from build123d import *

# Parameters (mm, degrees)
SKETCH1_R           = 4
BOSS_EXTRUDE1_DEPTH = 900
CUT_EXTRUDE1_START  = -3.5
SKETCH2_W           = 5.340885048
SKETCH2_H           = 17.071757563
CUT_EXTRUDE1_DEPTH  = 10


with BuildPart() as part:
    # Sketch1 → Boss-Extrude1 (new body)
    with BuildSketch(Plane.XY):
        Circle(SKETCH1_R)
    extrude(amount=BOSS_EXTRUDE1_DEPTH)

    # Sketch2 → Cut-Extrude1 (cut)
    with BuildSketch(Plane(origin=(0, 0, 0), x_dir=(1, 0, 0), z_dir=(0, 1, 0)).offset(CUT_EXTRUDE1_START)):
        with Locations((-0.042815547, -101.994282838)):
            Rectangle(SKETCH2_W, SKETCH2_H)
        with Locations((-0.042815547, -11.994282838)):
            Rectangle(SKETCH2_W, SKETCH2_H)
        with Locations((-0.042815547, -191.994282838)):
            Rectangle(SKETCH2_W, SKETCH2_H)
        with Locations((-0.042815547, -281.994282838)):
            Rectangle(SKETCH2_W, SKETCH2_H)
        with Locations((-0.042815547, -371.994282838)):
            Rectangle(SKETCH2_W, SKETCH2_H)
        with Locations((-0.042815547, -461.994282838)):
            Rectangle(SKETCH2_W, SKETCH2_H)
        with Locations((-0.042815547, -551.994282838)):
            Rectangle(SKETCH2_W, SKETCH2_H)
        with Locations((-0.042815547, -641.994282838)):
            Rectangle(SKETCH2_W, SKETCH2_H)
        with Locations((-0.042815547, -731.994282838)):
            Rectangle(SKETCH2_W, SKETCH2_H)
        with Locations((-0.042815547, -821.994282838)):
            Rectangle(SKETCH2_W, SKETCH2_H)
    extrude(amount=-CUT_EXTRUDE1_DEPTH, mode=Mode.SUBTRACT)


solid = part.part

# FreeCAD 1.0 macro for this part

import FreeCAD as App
import Part
import Sketcher
from FreeCAD import Vector
Q = App.Units.Quantity

doc = App.newDocument("Part")
body = doc.addObject("PartDesign::Body", "Body")

sketch1 = body.newObject("Sketcher::SketchObject", "Sketch")
sketch1.AttachmentSupport = (doc.getObject("XY_Plane"), [""])
sketch1.MapMode = "FlatFace"
sketch1.addGeometry(Part.Circle(Vector(0, 0, 0), Vector(0, 0, 1), 4), False)
sketch1.addConstraint([
    Sketcher.Constraint("Coincident", 0, 3, -1, 1),
    Sketcher.Constraint("Diameter", 0, Q("8 mm")),
])
pad1 = body.newObject("PartDesign::Pad", "Pad")
pad1.Profile = sketch1
pad1.Length = 900

sketch2 = body.newObject("Sketcher::SketchObject", "Sketch001")
sketch2.AttachmentSupport = (doc.getObject("XZ_Plane"), [""])
sketch2.MapMode = "FlatFace"
sketch2.AttachmentOffset = App.Placement(Vector(0, 0, 3.5), App.Rotation())
sketch2.addGeometry([
    Part.LineSegment(Vector(-3, 93, 0), Vector(-3, 111, 0)),
    Part.LineSegment(Vector(-3, 111, 0), Vector(3, 111, 0)),
    Part.LineSegment(Vector(3, 111, 0), Vector(3, 93, 0)),
    Part.LineSegment(Vector(3, 93, 0), Vector(-3, 93, 0)),
    Part.LineSegment(Vector(-3, 3, 0), Vector(-3, 21, 0)),
    Part.LineSegment(Vector(-3, 21, 0), Vector(3, 21, 0)),
    Part.LineSegment(Vector(3, 21, 0), Vector(3, 3, 0)),
    Part.LineSegment(Vector(3, 3, 0), Vector(-3, 3, 0)),
    Part.LineSegment(Vector(-3, 183, 0), Vector(-3, 201, 0)),
    Part.LineSegment(Vector(-3, 201, 0), Vector(3, 201, 0)),
    Part.LineSegment(Vector(3, 201, 0), Vector(3, 183, 0)),
    Part.LineSegment(Vector(3, 183, 0), Vector(-3, 183, 0)),
    Part.LineSegment(Vector(-3, 273, 0), Vector(-3, 291, 0)),
    Part.LineSegment(Vector(-3, 291, 0), Vector(3, 291, 0)),
    Part.LineSegment(Vector(3, 291, 0), Vector(3, 273, 0)),
    Part.LineSegment(Vector(3, 273, 0), Vector(-3, 273, 0)),
    Part.LineSegment(Vector(-3, 363, 0), Vector(-3, 381, 0)),
    Part.LineSegment(Vector(-3, 381, 0), Vector(3, 381, 0)),
    Part.LineSegment(Vector(3, 381, 0), Vector(3, 363, 0)),
    Part.LineSegment(Vector(3, 363, 0), Vector(-3, 363, 0)),
    Part.LineSegment(Vector(-3, 453, 0), Vector(-3, 471, 0)),
    Part.LineSegment(Vector(-3, 471, 0), Vector(3, 471, 0)),
    Part.LineSegment(Vector(3, 471, 0), Vector(3, 453, 0)),
    Part.LineSegment(Vector(3, 453, 0), Vector(-3, 453, 0)),
    Part.LineSegment(Vector(-3, 543, 0), Vector(-3, 561, 0)),
    Part.LineSegment(Vector(-3, 561, 0), Vector(3, 561, 0)),
    Part.LineSegment(Vector(3, 561, 0), Vector(3, 543, 0)),
    Part.LineSegment(Vector(3, 543, 0), Vector(-3, 543, 0)),
    Part.LineSegment(Vector(-3, 633, 0), Vector(-3, 651, 0)),
    Part.LineSegment(Vector(-3, 651, 0), Vector(3, 651, 0)),
    Part.LineSegment(Vector(3, 651, 0), Vector(3, 633, 0)),
    Part.LineSegment(Vector(3, 633, 0), Vector(-3, 633, 0)),
    Part.LineSegment(Vector(-3, 723, 0), Vector(-3, 741, 0)),
    Part.LineSegment(Vector(-3, 741, 0), Vector(3, 741, 0)),
    Part.LineSegment(Vector(3, 741, 0), Vector(3, 723, 0)),
    Part.LineSegment(Vector(3, 723, 0), Vector(-3, 723, 0)),
    Part.LineSegment(Vector(-3, 813, 0), Vector(-3, 831, 0)),
    Part.LineSegment(Vector(-3, 831, 0), Vector(3, 831, 0)),
    Part.LineSegment(Vector(3, 831, 0), Vector(3, 813, 0)),
    Part.LineSegment(Vector(3, 813, 0), Vector(-3, 813, 0)),
], False)
sketch2.addConstraint([
    Sketcher.Constraint("Coincident", 0, 2, 1, 1),
    Sketcher.Constraint("Coincident", 1, 2, 2, 1),
    Sketcher.Constraint("Coincident", 2, 2, 3, 1),
    Sketcher.Constraint("Coincident", 3, 2, 0, 1),
    Sketcher.Constraint("Coincident", 4, 2, 5, 1),
    Sketcher.Constraint("Coincident", 5, 2, 6, 1),
    Sketcher.Constraint("Coincident", 6, 2, 7, 1),
    Sketcher.Constraint("Coincident", 7, 2, 4, 1),
    Sketcher.Constraint("Coincident", 8, 2, 9, 1),
    Sketcher.Constraint("Coincident", 9, 2, 10, 1),
    Sketcher.Constraint("Coincident", 10, 2, 11, 1),
    Sketcher.Constraint("Coincident", 11, 2, 8, 1),
    Sketcher.Constraint("Coincident", 12, 2, 13, 1),
    Sketcher.Constraint("Coincident", 13, 2, 14, 1),
    Sketcher.Constraint("Coincident", 14, 2, 15, 1),
    Sketcher.Constraint("Coincident", 15, 2, 12, 1),
    Sketcher.Constraint("Coincident", 16, 2, 17, 1),
    Sketcher.Constraint("Coincident", 17, 2, 18, 1),
    Sketcher.Constraint("Coincident", 18, 2, 19, 1),
    Sketcher.Constraint("Coincident", 19, 2, 16, 1),
    Sketcher.Constraint("Coincident", 20, 2, 21, 1),
    Sketcher.Constraint("Coincident", 21, 2, 22, 1),
    Sketcher.Constraint("Coincident", 22, 2, 23, 1),
    Sketcher.Constraint("Coincident", 23, 2, 20, 1),
    Sketcher.Constraint("Coincident", 24, 2, 25, 1),
    Sketcher.Constraint("Coincident", 25, 2, 26, 1),
    Sketcher.Constraint("Coincident", 26, 2, 27, 1),
    Sketcher.Constraint("Coincident", 27, 2, 24, 1),
    Sketcher.Constraint("Coincident", 28, 2, 29, 1),
    Sketcher.Constraint("Coincident", 29, 2, 30, 1),
    Sketcher.Constraint("Coincident", 30, 2, 31, 1),
    Sketcher.Constraint("Coincident", 31, 2, 28, 1),
    Sketcher.Constraint("Coincident", 32, 2, 33, 1),
    Sketcher.Constraint("Coincident", 33, 2, 34, 1),
    Sketcher.Constraint("Coincident", 34, 2, 35, 1),
    Sketcher.Constraint("Coincident", 35, 2, 32, 1),
    Sketcher.Constraint("Coincident", 36, 2, 37, 1),
    Sketcher.Constraint("Coincident", 37, 2, 38, 1),
    Sketcher.Constraint("Coincident", 38, 2, 39, 1),
    Sketcher.Constraint("Coincident", 39, 2, 36, 1),
    Sketcher.Constraint("Vertical", 0),
    Sketcher.Constraint("Horizontal", 1),
    Sketcher.Constraint("Vertical", 2),
    Sketcher.Constraint("Horizontal", 3),
    Sketcher.Constraint("Vertical", 4),
    Sketcher.Constraint("Horizontal", 5),
    Sketcher.Constraint("Vertical", 6),
    Sketcher.Constraint("Horizontal", 7),
    Sketcher.Constraint("Vertical", 8),
    Sketcher.Constraint("Horizontal", 9),
    Sketcher.Constraint("Vertical", 10),
    Sketcher.Constraint("Horizontal", 11),
    Sketcher.Constraint("Vertical", 12),
    Sketcher.Constraint("Horizontal", 13),
    Sketcher.Constraint("Vertical", 14),
    Sketcher.Constraint("Horizontal", 15),
    Sketcher.Constraint("Vertical", 16),
    Sketcher.Constraint("Horizontal", 17),
    Sketcher.Constraint("Vertical", 18),
    Sketcher.Constraint("Horizontal", 19),
    Sketcher.Constraint("Vertical", 20),
    Sketcher.Constraint("Horizontal", 21),
    Sketcher.Constraint("Vertical", 22),
    Sketcher.Constraint("Horizontal", 23),
    Sketcher.Constraint("Vertical", 24),
    Sketcher.Constraint("Horizontal", 25),
    Sketcher.Constraint("Vertical", 26),
    Sketcher.Constraint("Horizontal", 27),
    Sketcher.Constraint("Vertical", 28),
    Sketcher.Constraint("Horizontal", 29),
    Sketcher.Constraint("Vertical", 30),
    Sketcher.Constraint("Horizontal", 31),
    Sketcher.Constraint("Vertical", 32),
    Sketcher.Constraint("Horizontal", 33),
    Sketcher.Constraint("Vertical", 34),
    Sketcher.Constraint("Horizontal", 35),
    Sketcher.Constraint("Vertical", 36),
    Sketcher.Constraint("Horizontal", 37),
    Sketcher.Constraint("Vertical", 38),
    Sketcher.Constraint("Horizontal", 39),
    Sketcher.Constraint("Vertical", 3, 2, 4, 2),
    Sketcher.Constraint("Vertical", 2, 2, 5, 2),
    Sketcher.Constraint("Vertical", 7, 2, 8, 2),
    Sketcher.Constraint("Vertical", 6, 2, 9, 2),
    Sketcher.Constraint("Vertical", 11, 2, 12, 2),
    Sketcher.Constraint("Vertical", 10, 2, 13, 2),
    Sketcher.Constraint("Vertical", 15, 2, 16, 2),
    Sketcher.Constraint("Vertical", 14, 2, 17, 2),
    Sketcher.Constraint("Vertical", 19, 2, 20, 2),
    Sketcher.Constraint("Vertical", 18, 2, 21, 2),
    Sketcher.Constraint("Vertical", 23, 2, 24, 2),
    Sketcher.Constraint("Vertical", 22, 2, 25, 2),
    Sketcher.Constraint("Vertical", 27, 2, 28, 2),
    Sketcher.Constraint("Vertical", 26, 2, 29, 2),
    Sketcher.Constraint("Vertical", 31, 2, 32, 2),
    Sketcher.Constraint("Vertical", 30, 2, 33, 2),
    Sketcher.Constraint("Vertical", 35, 2, 36, 2),
    Sketcher.Constraint("Vertical", 34, 2, 37, 2),
    Sketcher.Constraint("Equal", 2, 4),
    Sketcher.Constraint("Equal", 6, 8),
    Sketcher.Constraint("Equal", 10, 12),
    Sketcher.Constraint("Equal", 14, 16),
    Sketcher.Constraint("Equal", 18, 20),
    Sketcher.Constraint("Equal", 22, 24),
    Sketcher.Constraint("Equal", 26, 28),
    Sketcher.Constraint("Equal", 30, 32),
    Sketcher.Constraint("Equal", 34, 36),
    Sketcher.Constraint("DistanceY", 4, 2, 0, 2, Q("90 mm")),
    Sketcher.Constraint("DistanceY", 0, 2, 8, 2, Q("90 mm")),
    Sketcher.Constraint("DistanceY", 8, 2, 12, 2, Q("90 mm")),
    Sketcher.Constraint("DistanceY", 12, 2, 16, 2, Q("90 mm")),
    Sketcher.Constraint("DistanceY", 16, 2, 20, 2, Q("90 mm")),
    Sketcher.Constraint("DistanceY", 20, 2, 24, 2, Q("90 mm")),
    Sketcher.Constraint("DistanceY", 24, 2, 28, 2, Q("90 mm")),
    Sketcher.Constraint("DistanceY", 28, 2, 32, 2, Q("90 mm")),
    Sketcher.Constraint("DistanceY", 32, 2, 36, 2, Q("90 mm")),
    Sketcher.Constraint("DistanceX", 1, 1, 1, 2, Q("5.340885 mm")),
    Sketcher.Constraint("DistanceY", 0, 1, 0, 2, Q("17.071758 mm")),
    Sketcher.Constraint("DistanceX", 0, 2, -1, 1, Q("2.713258 mm")),
    Sketcher.Constraint("DistanceY", -1, 1, 0, 2, Q("110.530162 mm")),
])
pocket1 = body.newObject("PartDesign::Pocket", "Pocket")
pocket1.Profile = sketch2
pocket1.Length = 10
pocket1.Reversed = True

doc.recompute()
